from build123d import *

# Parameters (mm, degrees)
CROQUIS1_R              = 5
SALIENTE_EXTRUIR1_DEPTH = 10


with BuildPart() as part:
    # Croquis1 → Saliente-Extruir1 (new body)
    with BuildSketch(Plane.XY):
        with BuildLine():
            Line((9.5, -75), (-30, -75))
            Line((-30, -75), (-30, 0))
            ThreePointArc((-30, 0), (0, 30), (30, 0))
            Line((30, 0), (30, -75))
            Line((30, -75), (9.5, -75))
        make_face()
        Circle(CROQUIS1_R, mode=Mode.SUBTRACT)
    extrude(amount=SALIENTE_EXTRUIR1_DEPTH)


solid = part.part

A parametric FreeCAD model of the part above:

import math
import FreeCAD as App
import Part
import Sketcher
from FreeCAD import Vector
Q = App.Units.Quantity

doc = App.newDocument("Part")
body = doc.addObject("PartDesign::Body", "Body")

# Sketch on XY plane
sketch1 = body.newObject("Sketcher::SketchObject", "Sketch")
sketch1.AttachmentSupport = (doc.getObject("XY_Plane"), [""])
sketch1.MapMode = "FlatFace"
sketch1.addGeometry(Part.LineSegment(Vector(-30, 0, 0), Vector(-30, -75, 0)), False)
sketch1.addGeometry(Part.LineSegment(Vector(-30, -75, 0), Vector(30, -75, 0)), False)
sketch1.addGeometry(Part.LineSegment(Vector(30, -75, 0), Vector(30, 0, 0)), False)
sketch1.addGeometry(Part.ArcOfCircle(Part.Circle(Vector(0, 0, 0), Vector(0, 0, 1), 30), math.radians(0), math.radians(180)), False)
sketch1.addGeometry(Part.Circle(Vector(0, 0, 0), Vector(0, 0, 1), 5), False)
sketch1.addConstraint(Sketcher.Constraint("Coincident", 0, 2, 1, 1))
sketch1.addConstraint(Sketcher.Constraint("Coincident", 1, 2, 2, 1))
sketch1.addConstraint(Sketcher.Constraint("Tangent", 2, 2, 3, 1))
sketch1.addConstraint(Sketcher.Constraint("Tangent", 3, 2, 0, 1))
sketch1.addConstraint(Sketcher.Constraint("Vertical", 0))
sketch1.addConstraint(Sketcher.Constraint("Horizontal", 1))
sketch1.addConstraint(Sketcher.Constraint("Vertical", 2))
sketch1.addConstraint(Sketcher.Constraint("Coincident", 3, 3, -1, 1))
sketch1.addConstraint(Sketcher.Constraint("Coincident", 4, 3, -1, 1))
sketch1.addConstraint(Sketcher.Constraint("Diameter", 4, Q("10 mm")))
sketch1.addConstraint(Sketcher.Constraint("Radius", 3, Q("30 mm")))
sketch1.addConstraint(Sketcher.Constraint("DistanceY", 0, 2, 0, 1, Q("75 mm")))
pad1 = body.newObject("PartDesign::Pad", "Pad")
pad1.Profile = sketch1
pad1.Length = 10

doc.recompute()
